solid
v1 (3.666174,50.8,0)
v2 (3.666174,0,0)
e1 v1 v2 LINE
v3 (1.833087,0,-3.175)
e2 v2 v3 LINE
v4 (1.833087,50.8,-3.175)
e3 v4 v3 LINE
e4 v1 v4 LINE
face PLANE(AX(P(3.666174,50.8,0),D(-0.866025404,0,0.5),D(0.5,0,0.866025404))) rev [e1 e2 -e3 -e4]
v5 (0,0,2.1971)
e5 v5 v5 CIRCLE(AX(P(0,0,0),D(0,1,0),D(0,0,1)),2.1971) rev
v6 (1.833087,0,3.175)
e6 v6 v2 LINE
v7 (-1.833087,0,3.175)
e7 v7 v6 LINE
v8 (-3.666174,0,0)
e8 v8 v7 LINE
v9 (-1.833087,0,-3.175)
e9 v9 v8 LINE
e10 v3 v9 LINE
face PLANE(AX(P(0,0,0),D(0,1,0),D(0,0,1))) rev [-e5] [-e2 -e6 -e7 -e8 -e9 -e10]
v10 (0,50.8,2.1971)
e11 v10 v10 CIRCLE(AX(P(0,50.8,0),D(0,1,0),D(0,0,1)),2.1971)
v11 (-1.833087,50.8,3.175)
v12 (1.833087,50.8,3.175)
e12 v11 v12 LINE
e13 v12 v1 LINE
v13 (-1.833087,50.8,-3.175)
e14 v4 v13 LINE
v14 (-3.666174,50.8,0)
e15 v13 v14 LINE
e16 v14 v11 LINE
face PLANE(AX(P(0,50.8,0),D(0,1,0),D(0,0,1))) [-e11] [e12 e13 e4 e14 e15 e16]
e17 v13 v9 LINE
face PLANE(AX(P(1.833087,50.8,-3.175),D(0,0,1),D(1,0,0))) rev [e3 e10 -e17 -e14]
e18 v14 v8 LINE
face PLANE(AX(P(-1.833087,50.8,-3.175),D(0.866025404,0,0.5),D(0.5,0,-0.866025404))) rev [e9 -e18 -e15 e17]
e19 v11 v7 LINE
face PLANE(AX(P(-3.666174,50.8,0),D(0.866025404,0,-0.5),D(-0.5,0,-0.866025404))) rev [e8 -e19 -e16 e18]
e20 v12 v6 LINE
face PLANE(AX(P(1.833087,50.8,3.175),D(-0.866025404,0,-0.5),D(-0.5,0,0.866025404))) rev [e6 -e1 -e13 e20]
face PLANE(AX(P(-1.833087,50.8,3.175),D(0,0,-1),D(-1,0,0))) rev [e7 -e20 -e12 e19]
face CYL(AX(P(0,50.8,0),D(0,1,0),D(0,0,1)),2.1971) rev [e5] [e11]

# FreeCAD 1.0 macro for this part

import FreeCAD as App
import Part
import Sketcher

V = App.Vector
Q = App.Units.Quantity

doc = App.newDocument("Part")
params = doc.addObject("Spreadsheet::Sheet", "Params")
for row, (alias, value) in enumerate([
    ("pad1_length", "2 in"),
    ("sketch2_diameter", "0.173 in"),
    ("hole_diameter", "0.173 in"),
], start=1):
    params.set(f"A{row}", alias)
    params.set(f"B{row}", "=" + value)
    params.setAlias(f"B{row}", alias)

body = doc.addObject("PartDesign::Body", "Body")

sketch1 = doc.addObject("Sketcher::SketchObject", "Sketch")
body.addObject(sketch1)
sketch1.AttachmentSupport = (doc.XZ_Plane, [""])
sketch1.MapMode = "FlatFace"
sketch1.addGeometry([
    Part.LineSegment(V(1.8, -3.2, 0), V(-1.8, -3.2, 0)),
    Part.LineSegment(V(-1.8, -3.2, 0), V(-3.7, 0, 0)),
    Part.LineSegment(V(-3.7, 0, 0), V(-1.8, 3.2, 0)),
    Part.LineSegment(V(-1.8, 3.2, 0), V(1.8, 3.2, 0)),
    Part.LineSegment(V(1.8, 3.2, 0), V(3.7, 0, 0)),
    Part.LineSegment(V(3.7, 0, 0), V(1.8, -3.2, 0)),
], False)
sketch1.addConstraint([
    Sketcher.Constraint("Coincident", 0, 2, 1, 1),
    Sketcher.Constraint("Coincident", 1, 2, 2, 1),
    Sketcher.Constraint("Coincident", 2, 2, 3, 1),
    Sketcher.Constraint("Coincident", 3, 2, 4, 1),
    Sketcher.Constraint("Coincident", 4, 2, 5, 1),
    Sketcher.Constraint("Coincident", 5, 2, 0, 1),
    Sketcher.Constraint("Horizontal", 0),
    Sketcher.Constraint("Horizontal", 3),
    Sketcher.Constraint("Symmetric", 0, 2, 3, 2, -1, 1),
    Sketcher.Constraint("Symmetric", 1, 2, 4, 2, -1, 1),
    Sketcher.Constraint("PointOnObject", 1, 2, -1),
    Sketcher.Constraint("Parallel", 2, 5),
    Sketcher.Constraint("Vertical", 0, 2, 2, 2),
    Sketcher.Constraint("Angle", 1, Q("120 deg")),
    Sketcher.Constraint("DistanceY", 0, 2, 2, 2, Q("0.25 in")),
    Sketcher.Constraint("DistanceX", 0, 2, 0, 1, Q("3.666174 mm")),
])
pad1 = doc.addObject("PartDesign::Pad", "Pad")
body.addObject(pad1)
pad1.Profile = sketch1
pad1.setExpression("Length", "Params.pad1_length")
pad1.Reversed = True

sketch2 = doc.addObject("Sketcher::SketchObject", "Sketch001")
body.addObject(sketch2)
sketch2.AttachmentSupport = (doc.XZ_Plane, [""])
sketch2.MapMode = "FlatFace"
sketch2.AttachmentOffset = App.Placement(V(0, 0, -2 * 25.4), App.Rotation())
sketch2.addGeometry(Part.Circle(V(0, 0, 0), V(0, 0, 1), 2.2), False)
sketch2.addConstraint([
    Sketcher.Constraint("Coincident", 0, 3, -1, 1),
    Sketcher.Constraint("Diameter", 0, Q("0.173 in")),
])
sketch2.setExpression("Constraints[1]", "Params.sketch2_diameter")
doc.recompute()
hole = doc.addObject("PartDesign::Hole", "Hole")
body.addObject(hole)
hole.Profile = sketch2
hole.ThreadType = "None"
hole.setExpression("Diameter", "Params.hole_diameter")
hole.DepthType = "ThroughAll"
hole.Reversed = True

doc.recompute()
